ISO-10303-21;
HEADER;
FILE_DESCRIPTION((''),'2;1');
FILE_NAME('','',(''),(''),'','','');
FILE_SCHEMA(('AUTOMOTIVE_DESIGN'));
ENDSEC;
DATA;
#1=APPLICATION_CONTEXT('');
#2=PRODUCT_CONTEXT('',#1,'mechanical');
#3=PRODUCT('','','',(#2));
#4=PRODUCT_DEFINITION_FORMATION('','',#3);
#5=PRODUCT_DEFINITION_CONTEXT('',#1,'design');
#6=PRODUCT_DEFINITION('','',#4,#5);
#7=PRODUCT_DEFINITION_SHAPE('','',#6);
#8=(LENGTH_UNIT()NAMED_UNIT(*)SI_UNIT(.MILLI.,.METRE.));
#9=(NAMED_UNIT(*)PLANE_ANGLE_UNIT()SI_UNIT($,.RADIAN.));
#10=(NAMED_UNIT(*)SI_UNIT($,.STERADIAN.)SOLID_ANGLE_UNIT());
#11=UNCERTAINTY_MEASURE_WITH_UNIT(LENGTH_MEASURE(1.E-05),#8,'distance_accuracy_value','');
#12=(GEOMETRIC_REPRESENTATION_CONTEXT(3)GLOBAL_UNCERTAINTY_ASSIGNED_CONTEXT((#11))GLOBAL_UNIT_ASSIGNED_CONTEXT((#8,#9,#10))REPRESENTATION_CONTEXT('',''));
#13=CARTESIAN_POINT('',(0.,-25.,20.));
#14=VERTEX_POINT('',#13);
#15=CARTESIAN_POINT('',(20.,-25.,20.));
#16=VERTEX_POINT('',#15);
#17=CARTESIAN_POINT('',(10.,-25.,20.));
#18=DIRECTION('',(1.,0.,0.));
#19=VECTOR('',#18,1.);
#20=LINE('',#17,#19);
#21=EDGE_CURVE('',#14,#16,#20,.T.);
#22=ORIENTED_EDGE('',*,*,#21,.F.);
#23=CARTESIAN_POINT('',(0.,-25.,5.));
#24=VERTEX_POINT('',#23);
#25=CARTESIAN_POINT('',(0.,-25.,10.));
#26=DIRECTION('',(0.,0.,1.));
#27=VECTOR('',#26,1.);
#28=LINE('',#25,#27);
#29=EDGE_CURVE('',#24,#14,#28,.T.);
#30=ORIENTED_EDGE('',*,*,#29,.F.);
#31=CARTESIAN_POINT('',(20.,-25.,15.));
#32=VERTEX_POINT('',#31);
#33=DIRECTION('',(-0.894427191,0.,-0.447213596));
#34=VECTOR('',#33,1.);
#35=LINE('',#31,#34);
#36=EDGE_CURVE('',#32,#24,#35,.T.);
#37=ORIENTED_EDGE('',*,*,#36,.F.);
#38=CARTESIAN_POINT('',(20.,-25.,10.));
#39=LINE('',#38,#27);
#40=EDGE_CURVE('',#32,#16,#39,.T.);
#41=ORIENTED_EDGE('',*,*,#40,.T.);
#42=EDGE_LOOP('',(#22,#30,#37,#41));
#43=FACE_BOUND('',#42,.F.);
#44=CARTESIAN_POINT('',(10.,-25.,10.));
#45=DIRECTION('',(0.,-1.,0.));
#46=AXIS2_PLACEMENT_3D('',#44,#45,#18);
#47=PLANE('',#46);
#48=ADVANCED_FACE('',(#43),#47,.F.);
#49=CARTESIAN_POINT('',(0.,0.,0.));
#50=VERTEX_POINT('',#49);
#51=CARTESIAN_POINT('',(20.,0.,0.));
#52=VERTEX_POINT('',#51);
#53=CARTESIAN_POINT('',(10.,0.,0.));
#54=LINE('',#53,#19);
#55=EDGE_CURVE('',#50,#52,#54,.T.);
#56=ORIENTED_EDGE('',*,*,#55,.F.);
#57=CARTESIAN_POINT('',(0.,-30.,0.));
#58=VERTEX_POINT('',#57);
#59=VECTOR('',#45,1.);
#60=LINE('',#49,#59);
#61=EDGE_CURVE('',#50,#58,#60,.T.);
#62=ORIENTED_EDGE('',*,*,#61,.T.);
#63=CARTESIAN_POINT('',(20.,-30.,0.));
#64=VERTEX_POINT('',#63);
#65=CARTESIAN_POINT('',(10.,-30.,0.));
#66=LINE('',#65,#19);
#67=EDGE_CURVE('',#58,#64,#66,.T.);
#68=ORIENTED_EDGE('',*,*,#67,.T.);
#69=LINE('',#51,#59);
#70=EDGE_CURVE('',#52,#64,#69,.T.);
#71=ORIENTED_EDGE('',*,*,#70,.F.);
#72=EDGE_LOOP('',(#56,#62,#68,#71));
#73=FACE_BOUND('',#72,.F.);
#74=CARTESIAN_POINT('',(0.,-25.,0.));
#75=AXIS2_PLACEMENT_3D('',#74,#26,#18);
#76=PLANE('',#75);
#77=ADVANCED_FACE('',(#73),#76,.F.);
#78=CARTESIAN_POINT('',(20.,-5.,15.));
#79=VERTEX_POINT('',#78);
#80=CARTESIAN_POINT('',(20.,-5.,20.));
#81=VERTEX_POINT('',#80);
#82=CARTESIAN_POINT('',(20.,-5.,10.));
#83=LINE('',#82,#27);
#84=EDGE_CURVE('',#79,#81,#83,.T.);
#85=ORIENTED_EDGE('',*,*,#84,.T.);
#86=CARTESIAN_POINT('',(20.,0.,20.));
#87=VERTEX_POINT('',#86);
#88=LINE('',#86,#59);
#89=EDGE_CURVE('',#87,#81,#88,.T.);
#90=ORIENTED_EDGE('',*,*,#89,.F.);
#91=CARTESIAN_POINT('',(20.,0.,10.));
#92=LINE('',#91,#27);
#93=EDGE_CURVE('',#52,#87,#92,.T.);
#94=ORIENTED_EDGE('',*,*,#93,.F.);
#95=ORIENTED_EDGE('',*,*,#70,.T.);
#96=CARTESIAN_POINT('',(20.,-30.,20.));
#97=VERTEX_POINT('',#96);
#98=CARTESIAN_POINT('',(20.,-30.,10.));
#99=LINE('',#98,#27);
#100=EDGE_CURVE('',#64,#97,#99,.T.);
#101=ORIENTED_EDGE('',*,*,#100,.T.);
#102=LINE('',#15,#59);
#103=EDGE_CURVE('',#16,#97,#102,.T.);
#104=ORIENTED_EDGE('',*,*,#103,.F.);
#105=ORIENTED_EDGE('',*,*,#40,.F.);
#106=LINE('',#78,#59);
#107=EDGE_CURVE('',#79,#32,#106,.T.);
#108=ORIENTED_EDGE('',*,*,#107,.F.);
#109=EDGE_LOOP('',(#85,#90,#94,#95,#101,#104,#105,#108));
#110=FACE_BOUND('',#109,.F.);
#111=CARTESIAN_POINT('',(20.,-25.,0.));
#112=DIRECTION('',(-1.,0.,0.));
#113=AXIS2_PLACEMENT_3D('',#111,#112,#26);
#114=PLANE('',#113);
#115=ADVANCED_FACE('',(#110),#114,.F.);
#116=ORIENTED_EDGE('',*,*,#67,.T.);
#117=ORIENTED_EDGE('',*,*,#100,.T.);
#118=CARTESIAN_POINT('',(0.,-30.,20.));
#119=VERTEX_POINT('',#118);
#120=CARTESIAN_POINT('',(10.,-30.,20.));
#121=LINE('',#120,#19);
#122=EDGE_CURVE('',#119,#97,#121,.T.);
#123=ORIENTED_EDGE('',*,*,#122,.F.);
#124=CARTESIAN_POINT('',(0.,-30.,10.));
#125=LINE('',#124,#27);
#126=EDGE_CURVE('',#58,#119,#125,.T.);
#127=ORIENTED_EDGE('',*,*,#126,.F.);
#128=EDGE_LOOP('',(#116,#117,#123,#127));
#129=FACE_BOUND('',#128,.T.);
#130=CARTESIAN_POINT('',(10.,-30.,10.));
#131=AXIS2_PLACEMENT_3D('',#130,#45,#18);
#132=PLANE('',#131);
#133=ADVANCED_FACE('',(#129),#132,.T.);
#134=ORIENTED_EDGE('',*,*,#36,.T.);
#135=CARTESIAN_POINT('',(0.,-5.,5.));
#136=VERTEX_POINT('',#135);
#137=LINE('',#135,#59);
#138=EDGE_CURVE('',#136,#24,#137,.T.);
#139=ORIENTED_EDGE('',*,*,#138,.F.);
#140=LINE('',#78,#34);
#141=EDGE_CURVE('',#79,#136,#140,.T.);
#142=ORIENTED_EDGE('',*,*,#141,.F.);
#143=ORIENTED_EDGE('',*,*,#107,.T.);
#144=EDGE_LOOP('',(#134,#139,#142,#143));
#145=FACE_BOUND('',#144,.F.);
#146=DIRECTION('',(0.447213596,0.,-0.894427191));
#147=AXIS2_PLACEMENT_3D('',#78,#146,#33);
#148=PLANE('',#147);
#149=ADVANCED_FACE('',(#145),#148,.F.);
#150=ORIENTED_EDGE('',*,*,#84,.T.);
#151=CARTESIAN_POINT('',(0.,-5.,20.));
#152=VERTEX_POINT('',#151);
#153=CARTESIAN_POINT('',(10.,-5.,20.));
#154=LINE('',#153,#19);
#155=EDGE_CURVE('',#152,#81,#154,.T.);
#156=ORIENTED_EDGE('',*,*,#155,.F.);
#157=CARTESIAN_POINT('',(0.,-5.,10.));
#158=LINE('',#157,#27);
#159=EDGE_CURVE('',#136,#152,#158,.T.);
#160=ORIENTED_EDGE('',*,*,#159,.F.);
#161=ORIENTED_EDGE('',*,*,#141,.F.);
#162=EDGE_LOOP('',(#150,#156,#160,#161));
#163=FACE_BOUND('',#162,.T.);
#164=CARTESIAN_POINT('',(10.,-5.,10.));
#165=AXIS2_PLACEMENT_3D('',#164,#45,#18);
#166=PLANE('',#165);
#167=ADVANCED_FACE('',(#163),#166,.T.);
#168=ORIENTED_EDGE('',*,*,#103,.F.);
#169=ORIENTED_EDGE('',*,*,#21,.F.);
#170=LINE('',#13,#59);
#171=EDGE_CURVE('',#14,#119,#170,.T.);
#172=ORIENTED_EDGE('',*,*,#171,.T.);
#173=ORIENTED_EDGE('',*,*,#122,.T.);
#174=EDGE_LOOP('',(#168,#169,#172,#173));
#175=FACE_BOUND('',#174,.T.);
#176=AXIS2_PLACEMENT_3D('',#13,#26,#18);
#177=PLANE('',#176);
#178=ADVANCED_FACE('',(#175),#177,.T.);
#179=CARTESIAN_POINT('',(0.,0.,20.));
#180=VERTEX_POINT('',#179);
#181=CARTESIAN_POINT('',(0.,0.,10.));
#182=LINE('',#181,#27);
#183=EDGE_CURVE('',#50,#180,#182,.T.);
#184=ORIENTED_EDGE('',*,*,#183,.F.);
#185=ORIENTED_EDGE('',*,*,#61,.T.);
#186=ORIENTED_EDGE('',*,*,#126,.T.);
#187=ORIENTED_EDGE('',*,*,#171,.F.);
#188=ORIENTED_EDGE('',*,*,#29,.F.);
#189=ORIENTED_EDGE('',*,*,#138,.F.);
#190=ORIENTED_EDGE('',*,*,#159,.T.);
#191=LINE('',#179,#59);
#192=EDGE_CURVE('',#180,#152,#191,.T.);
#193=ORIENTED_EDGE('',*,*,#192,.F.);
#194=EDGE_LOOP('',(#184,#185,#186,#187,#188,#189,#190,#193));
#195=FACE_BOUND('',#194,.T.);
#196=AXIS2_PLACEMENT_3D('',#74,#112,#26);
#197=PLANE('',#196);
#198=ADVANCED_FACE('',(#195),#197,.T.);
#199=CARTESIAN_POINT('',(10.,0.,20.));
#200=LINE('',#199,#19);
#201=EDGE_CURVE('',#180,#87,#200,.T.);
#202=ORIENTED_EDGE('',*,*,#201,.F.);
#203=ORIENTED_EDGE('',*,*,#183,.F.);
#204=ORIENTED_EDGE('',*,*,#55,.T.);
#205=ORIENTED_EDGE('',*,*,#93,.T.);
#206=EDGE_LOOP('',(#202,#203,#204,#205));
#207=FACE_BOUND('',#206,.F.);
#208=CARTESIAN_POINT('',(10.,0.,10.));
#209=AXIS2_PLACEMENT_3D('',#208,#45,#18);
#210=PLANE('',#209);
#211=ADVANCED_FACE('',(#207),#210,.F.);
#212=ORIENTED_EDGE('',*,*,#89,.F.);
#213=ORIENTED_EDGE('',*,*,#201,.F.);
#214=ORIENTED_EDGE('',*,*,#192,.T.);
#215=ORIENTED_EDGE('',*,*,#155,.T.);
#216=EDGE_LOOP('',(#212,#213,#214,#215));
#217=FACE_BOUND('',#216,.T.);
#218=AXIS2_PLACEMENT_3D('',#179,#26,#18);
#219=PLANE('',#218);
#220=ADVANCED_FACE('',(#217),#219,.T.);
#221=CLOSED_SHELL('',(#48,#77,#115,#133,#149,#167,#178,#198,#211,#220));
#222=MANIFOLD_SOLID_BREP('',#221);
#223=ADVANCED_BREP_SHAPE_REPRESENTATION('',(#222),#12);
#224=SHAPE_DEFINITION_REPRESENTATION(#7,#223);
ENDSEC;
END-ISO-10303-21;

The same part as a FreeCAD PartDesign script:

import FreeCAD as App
import Part
import Sketcher
from FreeCAD import Vector
Q = App.Units.Quantity

doc = App.newDocument("Part")
body = doc.addObject("PartDesign::Body", "Body")

# Sketch on XZ plane
sketch1 = body.newObject("Sketcher::SketchObject", "Sketch")
sketch1.AttachmentSupport = (doc.getObject("XZ_Plane"), [""])
sketch1.MapMode = "FlatFace"
sketch1.addGeometry([
    Part.LineSegment(Vector(0, 20, 0), Vector(0, 0, 0)),
    Part.LineSegment(Vector(0, 0, 0), Vector(20, 0, 0)),
    Part.LineSegment(Vector(20, 0, 0), Vector(20, 20, 0)),
    Part.LineSegment(Vector(20, 20, 0), Vector(0, 20, 0)),
], False)
sketch1.addConstraint([
    Sketcher.Constraint("Coincident", 0, 2, 1, 1),
    Sketcher.Constraint("Coincident", 1, 2, 2, 1),
    Sketcher.Constraint("Coincident", 2, 2, 3, 1),
    Sketcher.Constraint("Coincident", 3, 2, 0, 1),
    Sketcher.Constraint("Vertical", 0),
    Sketcher.Constraint("Horizontal", 1),
    Sketcher.Constraint("Vertical", 2),
    Sketcher.Constraint("Horizontal", 3),
    Sketcher.Constraint("Coincident", 0, 2, -1, 1),
    Sketcher.Constraint("Equal", 3, 0),
    Sketcher.Constraint("DistanceX", 1, 1, 1, 2, Q("20 mm")),
])
pad1 = body.newObject("PartDesign::Pad", "Pad")
pad1.Profile = sketch1
pad1.Length = 5

# Sketch on XZ plane
sketch2 = body.newObject("Sketcher::SketchObject", "Sketch001")
sketch2.AttachmentSupport = (doc.getObject("XZ_Plane"), [""])
sketch2.MapMode = "FlatFace"
sketch2.AttachmentOffset = App.Placement(Vector(0, 0, 5), App.Rotation())
sketch2.addGeometry([
    Part.LineSegment(Vector(0, 5, 0), Vector(0, 0, 0)),
    Part.LineSegment(Vector(0, 0, 0), Vector(20, 0, 0)),
    Part.LineSegment(Vector(20, 0, 0), Vector(20, 15, 0)),
    Part.LineSegment(Vector(20, 15, 0), Vector(0, 5, 0)),
], False)
sketch2.addConstraint([
    Sketcher.Constraint("Coincident", 0, 2, 1, 1),
    Sketcher.Constraint("Coincident", 1, 2, 2, 1),
    Sketcher.Constraint("Coincident", 2, 2, 3, 1),
    Sketcher.Constraint("Coincident", 3, 2, 0, 1),
    Sketcher.Constraint("Vertical", 0),
    Sketcher.Constraint("Horizontal", 1),
    Sketcher.Constraint("Vertical", 2),
    Sketcher.Constraint("Coincident", 0, 2, -1, 1),
    Sketcher.Constraint("DistanceX", 1, 1, 1, 2, Q("20 mm")),
    Sketcher.Constraint("DistanceY", 0, 2, 0, 1, Q("5 mm")),
    Sketcher.Constraint("DistanceY", 2, 1, 2, 2, Q("15 mm")),
])
pad2 = body.newObject("PartDesign::Pad", "Pad001")
pad2.Profile = sketch2
pad2.Length = 20

# Sketch on XZ plane
sketch3 = body.newObject("Sketcher::SketchObject", "Sketch002")
sketch3.AttachmentSupport = (doc.getObject("XZ_Plane"), [""])
sketch3.MapMode = "FlatFace"
sketch3.AttachmentOffset = App.Placement(Vector(0, 0, 25), App.Rotation())
sketch3.addGeometry([
    Part.LineSegment(Vector(0, 20, 0), Vector(0, 0, 0)),
    Part.LineSegment(Vector(0, 0, 0), Vector(20, 0, 0)),
    Part.LineSegment(Vector(20, 0, 0), Vector(20, 20, 0)),
    Part.LineSegment(Vector(20, 20, 0), Vector(0, 20, 0)),
], False)
sketch3.addConstraint([
    Sketcher.Constraint("Coincident", 0, 2, 1, 1),
    Sketcher.Constraint("Coincident", 1, 2, 2, 1),
    Sketcher.Constraint("Coincident", 2, 2, 3, 1),
    Sketcher.Constraint("Coincident", 3, 2, 0, 1),
    Sketcher.Constraint("Vertical", 0),
    Sketcher.Constraint("Horizontal", 1),
    Sketcher.Constraint("Vertical", 2),
    Sketcher.Constraint("Horizontal", 3),
    Sketcher.Constraint("Coincident", 0, 2, -1, 1),
    Sketcher.Constraint("Equal", 3, 0),
    Sketcher.Constraint("DistanceX", 1, 1, 1, 2, Q("20 mm")),
])
pad3 = body.newObject("PartDesign::Pad", "Pad002")
pad3.Profile = sketch3
pad3.Length = 5

doc.recompute()
